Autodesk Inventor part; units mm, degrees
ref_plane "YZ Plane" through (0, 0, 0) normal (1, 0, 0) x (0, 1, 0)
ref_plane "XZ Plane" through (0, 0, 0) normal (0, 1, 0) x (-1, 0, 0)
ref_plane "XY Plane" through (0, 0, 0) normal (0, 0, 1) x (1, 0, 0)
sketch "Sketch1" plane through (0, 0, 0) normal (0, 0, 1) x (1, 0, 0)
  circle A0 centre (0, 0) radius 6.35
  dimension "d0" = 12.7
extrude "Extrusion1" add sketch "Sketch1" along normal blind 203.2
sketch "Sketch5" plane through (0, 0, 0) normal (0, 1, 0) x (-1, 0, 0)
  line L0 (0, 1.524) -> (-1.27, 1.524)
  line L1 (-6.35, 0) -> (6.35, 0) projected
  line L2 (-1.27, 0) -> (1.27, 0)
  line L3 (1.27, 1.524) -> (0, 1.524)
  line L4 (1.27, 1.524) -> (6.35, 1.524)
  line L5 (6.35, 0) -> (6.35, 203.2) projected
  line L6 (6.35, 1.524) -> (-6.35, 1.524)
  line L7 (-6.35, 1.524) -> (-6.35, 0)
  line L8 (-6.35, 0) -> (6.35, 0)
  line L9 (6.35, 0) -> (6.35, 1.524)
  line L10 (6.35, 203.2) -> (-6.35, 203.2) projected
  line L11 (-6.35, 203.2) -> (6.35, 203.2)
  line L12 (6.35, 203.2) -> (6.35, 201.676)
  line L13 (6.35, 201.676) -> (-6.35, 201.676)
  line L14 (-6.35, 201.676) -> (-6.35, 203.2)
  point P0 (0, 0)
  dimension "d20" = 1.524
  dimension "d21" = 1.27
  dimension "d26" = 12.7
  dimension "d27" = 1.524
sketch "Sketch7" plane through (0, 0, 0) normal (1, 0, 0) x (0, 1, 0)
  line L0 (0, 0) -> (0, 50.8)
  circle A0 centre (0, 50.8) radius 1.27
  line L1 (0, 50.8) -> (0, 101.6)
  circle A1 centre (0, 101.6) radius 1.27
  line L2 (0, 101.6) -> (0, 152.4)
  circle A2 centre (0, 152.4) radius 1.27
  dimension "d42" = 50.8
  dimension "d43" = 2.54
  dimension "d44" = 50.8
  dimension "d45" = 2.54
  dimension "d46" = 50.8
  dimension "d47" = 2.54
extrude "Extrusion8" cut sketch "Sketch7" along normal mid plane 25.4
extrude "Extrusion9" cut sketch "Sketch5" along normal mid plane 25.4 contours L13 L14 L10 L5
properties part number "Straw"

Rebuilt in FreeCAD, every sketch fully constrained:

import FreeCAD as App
import Part
import Sketcher
from FreeCAD import Vector
Q = App.Units.Quantity

doc = App.newDocument("Part")
body = doc.addObject("PartDesign::Body", "Body")

# Sketch on XY plane
sketch1 = body.newObject("Sketcher::SketchObject", "Sketch")
sketch1.AttachmentSupport = (doc.getObject("XY_Plane"), [""])
sketch1.MapMode = "FlatFace"
sketch1.addGeometry(Part.Circle(Vector(0, 0, 0), Vector(0, 0, 1), 6.35), False)
sketch1.addConstraint([
    Sketcher.Constraint("Coincident", 0, 3, -1, 1),
    Sketcher.Constraint("Diameter", 0, Q("0.5 in")),
])
pad1 = body.newObject("PartDesign::Pad", "Pad")
pad1.Profile = sketch1
pad1.Length = Q("8 in")

# Sketch on YZ plane
sketch2 = body.newObject("Sketcher::SketchObject", "Sketch001")
sketch2.AttachmentSupport = (doc.getObject("YZ_Plane"), [""])
sketch2.MapMode = "FlatFace"
sketch2.addGeometry([
    Part.Circle(Vector(0, 50.8, 0), Vector(0, 0, 1), 1.27),
    Part.Circle(Vector(0, 152.4, 0), Vector(0, 0, 1), 1.27),
    Part.Circle(Vector(0, 101.6, 0), Vector(0, 0, 1), 1.27),
], False)
sketch2.addConstraint([
    Sketcher.Constraint("Equal", 0, 1),
    Sketcher.Constraint("Equal", 1, 2),
    Sketcher.Constraint("PointOnObject", 0, 3, -2),
    Sketcher.Constraint("PointOnObject", 1, 3, -2),
    Sketcher.Constraint("PointOnObject", 2, 3, -2),
    Sketcher.Constraint("Diameter", 0, Q("0.1 in")),
    Sketcher.Constraint("DistanceY", -1, 1, 0, 3, Q("2 in")),
    Sketcher.Constraint("DistanceY", 0, 3, 2, 3, Q("2 in")),
    Sketcher.Constraint("DistanceY", 2, 3, 1, 3, Q("2 in")),
])
pocket1 = body.newObject("PartDesign::Pocket", "Pocket")
pocket1.Profile = sketch2
pocket1.Length = Q("1 in")
pocket1.Midplane = True

# Sketch on XZ plane
sketch3 = body.newObject("Sketcher::SketchObject", "Sketch002")
sketch3.AttachmentSupport = (doc.getObject("XZ_Plane"), [""])
sketch3.MapMode = "FlatFace"
sketch3.addGeometry([
    Part.LineSegment(Vector(6.35, 201.676, 0), Vector(-6.35, 201.676, 0)),
    Part.LineSegment(Vector(-6.35, 201.676, 0), Vector(-6.35, 203.2, 0)),
    Part.LineSegment(Vector(-6.35, 203.2, 0), Vector(6.35, 203.2, 0)),
    Part.LineSegment(Vector(6.35, 203.2, 0), Vector(6.35, 201.676, 0)),
], False)
sketch3.addConstraint([
    Sketcher.Constraint("Coincident", 0, 2, 1, 1),
    Sketcher.Constraint("Coincident", 1, 2, 2, 1),
    Sketcher.Constraint("Coincident", 2, 2, 3, 1),
    Sketcher.Constraint("Coincident", 3, 2, 0, 1),
    Sketcher.Constraint("Horizontal", 0),
    Sketcher.Constraint("Vertical", 1),
    Sketcher.Constraint("Horizontal", 2),
    Sketcher.Constraint("Vertical", 3),
    Sketcher.Constraint("DistanceX", 0, 2, 0, 1, Q("0.5 in")),
    Sketcher.Constraint("DistanceY", 1, 1, 1, 2, Q("0.06 in")),
    Sketcher.Constraint("DistanceY", -1, 1, 1, 2, Q("8 in")),
    Sketcher.Constraint("DistanceX", 0, 2, -1, 1, Q("0.25 in")),
])
pocket2 = body.newObject("PartDesign::Pocket", "Pocket001")
pocket2.Profile = sketch3
pocket2.Length = Q("1 in")
pocket2.Midplane = True

doc.recompute()
